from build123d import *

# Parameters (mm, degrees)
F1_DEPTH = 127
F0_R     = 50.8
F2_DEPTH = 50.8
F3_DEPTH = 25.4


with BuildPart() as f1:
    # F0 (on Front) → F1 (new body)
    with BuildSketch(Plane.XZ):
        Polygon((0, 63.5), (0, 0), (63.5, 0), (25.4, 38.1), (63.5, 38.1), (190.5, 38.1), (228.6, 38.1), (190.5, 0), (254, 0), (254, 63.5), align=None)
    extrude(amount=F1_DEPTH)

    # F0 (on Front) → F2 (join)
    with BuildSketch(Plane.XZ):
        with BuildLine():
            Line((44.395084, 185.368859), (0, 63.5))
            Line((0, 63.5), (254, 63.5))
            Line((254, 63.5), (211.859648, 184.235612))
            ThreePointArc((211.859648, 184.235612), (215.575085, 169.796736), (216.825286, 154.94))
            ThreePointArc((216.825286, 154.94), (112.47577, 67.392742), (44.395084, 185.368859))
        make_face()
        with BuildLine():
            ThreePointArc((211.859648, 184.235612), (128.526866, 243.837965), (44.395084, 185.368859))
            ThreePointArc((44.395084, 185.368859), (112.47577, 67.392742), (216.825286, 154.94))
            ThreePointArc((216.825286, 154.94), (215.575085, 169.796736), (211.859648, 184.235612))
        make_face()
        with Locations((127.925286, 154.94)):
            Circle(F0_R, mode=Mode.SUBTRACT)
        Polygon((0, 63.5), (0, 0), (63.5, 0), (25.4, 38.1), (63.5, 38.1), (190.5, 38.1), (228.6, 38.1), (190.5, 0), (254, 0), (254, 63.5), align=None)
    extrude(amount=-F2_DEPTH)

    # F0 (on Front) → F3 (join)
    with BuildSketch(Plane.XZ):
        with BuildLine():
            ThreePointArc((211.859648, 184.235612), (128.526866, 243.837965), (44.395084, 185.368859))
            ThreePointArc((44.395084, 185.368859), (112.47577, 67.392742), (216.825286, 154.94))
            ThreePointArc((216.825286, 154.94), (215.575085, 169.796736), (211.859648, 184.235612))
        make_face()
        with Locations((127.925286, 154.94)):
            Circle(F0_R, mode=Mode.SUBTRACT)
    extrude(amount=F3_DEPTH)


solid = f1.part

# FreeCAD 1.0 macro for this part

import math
import FreeCAD as App
import Part
import Sketcher
from FreeCAD import Vector
Q = App.Units.Quantity

doc = App.newDocument("Part")
body = doc.addObject("PartDesign::Body", "Body")

sketch1 = doc.addObject("Sketcher::SketchObject", "Sketch")
body.addObject(sketch1)
sketch1.AttachmentSupport = (doc.XZ_Plane, [""])
sketch1.MapMode = "FlatFace"
sketch1.addGeometry([
    Part.LineSegment(Vector(0, 64, 0), Vector(0, 0, 0)),
    Part.LineSegment(Vector(0, 0, 0), Vector(64, 0, 0)),
    Part.LineSegment(Vector(64, 0, 0), Vector(25, 38, 0)),
    Part.LineSegment(Vector(25, 38, 0), Vector(229, 38, 0)),
    Part.LineSegment(Vector(229, 38, 0), Vector(190, 0, 0)),
    Part.LineSegment(Vector(190, 0, 0), Vector(254, 0, 0)),
    Part.LineSegment(Vector(254, 0, 0), Vector(254, 64, 0)),
    Part.LineSegment(Vector(254, 64, 0), Vector(0, 64, 0)),
], False)
sketch1.addConstraint([
    Sketcher.Constraint("Coincident", 0, 2, 1, 1),
    Sketcher.Constraint("Coincident", 1, 2, 2, 1),
    Sketcher.Constraint("Coincident", 2, 2, 3, 1),
    Sketcher.Constraint("Coincident", 3, 2, 4, 1),
    Sketcher.Constraint("Coincident", 4, 2, 5, 1),
    Sketcher.Constraint("Coincident", 5, 2, 6, 1),
    Sketcher.Constraint("Coincident", 6, 2, 7, 1),
    Sketcher.Constraint("Coincident", 7, 2, 0, 1),
    Sketcher.Constraint("Vertical", 0),
    Sketcher.Constraint("Horizontal", 1),
    Sketcher.Constraint("Horizontal", 3),
    Sketcher.Constraint("Horizontal", 5),
    Sketcher.Constraint("Vertical", 6),
    Sketcher.Constraint("Horizontal", 7),
    Sketcher.Constraint("Coincident", 0, 2, -1, 1),
    Sketcher.Constraint("PointOnObject", 4, 2, -1),
    Sketcher.Constraint("Perpendicular", 2, 4),
    Sketcher.Constraint("Equal", 1, 5),
    Sketcher.Constraint("Equal", 5, 0),
    Sketcher.Constraint("Equal", 2, 4),
    Sketcher.Constraint("DistanceX", 3, 1, 3, 2, Q("8 in")),
    Sketcher.Constraint("DistanceX", 7, 2, 7, 1, Q("10 in")),
    Sketcher.Constraint("DistanceX", 1, 1, 1, 2, Q("2.5 in")),
])
pad1 = doc.addObject("PartDesign::Pad", "Pad")
body.addObject(pad1)
pad1.Profile = sketch1
pad1.Length = Q("5 in")

sketch2 = doc.addObject("Sketcher::SketchObject", "Sketch001")
body.addObject(sketch2)
sketch2.AttachmentSupport = (doc.XZ_Plane, [""])
sketch2.MapMode = "FlatFace"
sketch2.addGeometry([
    Part.LineSegment(Vector(44, 185, 0), Vector(0, 64, 0)),
    Part.LineSegment(Vector(0, 64, 0), Vector(0, 0, 0)),
    Part.LineSegment(Vector(0, 0, 0), Vector(64, 0, 0)),
    Part.LineSegment(Vector(64, 0, 0), Vector(25, 38, 0)),
    Part.LineSegment(Vector(25, 38, 0), Vector(229, 38, 0)),
    Part.LineSegment(Vector(229, 38, 0), Vector(190, 0, 0)),
    Part.LineSegment(Vector(190, 0, 0), Vector(254, 0, 0)),
    Part.LineSegment(Vector(254, 0, 0), Vector(254, 64, 0)),
    Part.LineSegment(Vector(254, 64, 0), Vector(212, 184, 0)),
    Part.ArcOfCircle(Part.Circle(Vector(128, 155, 0), Vector(0, 0, 1), 89), math.radians(19), math.radians(160)),
    Part.Circle(Vector(128, 155, 0), Vector(0, 0, 1), 51),
], False)
sketch2.addConstraint([
    Sketcher.Constraint("Coincident", 0, 2, 1, 1),
    Sketcher.Constraint("Coincident", 1, 2, 2, 1),
    Sketcher.Constraint("Coincident", 2, 2, 3, 1),
    Sketcher.Constraint("Coincident", 3, 2, 4, 1),
    Sketcher.Constraint("Coincident", 4, 2, 5, 1),
    Sketcher.Constraint("Coincident", 5, 2, 6, 1),
    Sketcher.Constraint("Coincident", 6, 2, 7, 1),
    Sketcher.Constraint("Coincident", 7, 2, 8, 1),
    Sketcher.Constraint("Tangent", 8, 2, 9, 1),
    Sketcher.Constraint("Tangent", 9, 2, 0, 1),
    Sketcher.Constraint("Vertical", 1),
    Sketcher.Constraint("Horizontal", 2),
    Sketcher.Constraint("Horizontal", 4),
    Sketcher.Constraint("Horizontal", 6),
    Sketcher.Constraint("Vertical", 7),
    Sketcher.Constraint("Coincident", 1, 2, -1, 1),
    Sketcher.Constraint("Coincident", 10, 3, 9, 3),
    Sketcher.Constraint("PointOnObject", 5, 2, -1),
    Sketcher.Constraint("Perpendicular", 3, 5),
    Sketcher.Constraint("Horizontal", 0, 2, 7, 2),
    Sketcher.Constraint("Equal", 2, 6),
    Sketcher.Constraint("Equal", 6, 1),
    Sketcher.Constraint("Equal", 3, 5),
    Sketcher.Constraint("Diameter", 10, Q("4 in")),
    Sketcher.Constraint("Radius", 9, Q("3.5 in")),
    Sketcher.Constraint("DistanceX", 4, 1, 4, 2, Q("8 in")),
    Sketcher.Constraint("DistanceX", 2, 1, 2, 2, Q("2.5 in")),
    Sketcher.Constraint("DistanceX", -1, 1, 3, 2, Q("1 in")),
    Sketcher.Constraint("DistanceY", -1, 1, 9, 3, Q("6.1 in")),
    Sketcher.Constraint("DistanceX", 9, 2, 9, 3, 83.530202),
])
pad2 = doc.addObject("PartDesign::Pad", "Pad001")
body.addObject(pad2)
pad2.Profile = sketch2
pad2.Length = Q("2 in")
pad2.Reversed = True

sketch3 = doc.addObject("Sketcher::SketchObject", "Sketch002")
body.addObject(sketch3)
sketch3.AttachmentSupport = (doc.XZ_Plane, [""])
sketch3.MapMode = "FlatFace"
sketch3.addGeometry([
    Part.ArcOfCircle(Part.Circle(Vector(127.925286, 154.94, 0), Vector(0, 0, 1), 88.9), math.radians(19.24052), math.radians(159.984041)),
    Part.ArcOfCircle(Part.Circle(Vector(127.925286, 154.940001, 0), Vector(0, 0, 1), 88.9), math.radians(159.984041), math.radians(360)),
    Part.ArcOfCircle(Part.Circle(Vector(127.925233, 154.939991, 0), Vector(0, 0, 1), 88.900053), math.radians(0.000006), math.radians(19.240515)),
    Part.Circle(Vector(127.925286, 154.94, 0), Vector(0, 0, 1), 50.8),
], False)
sketch3.addConstraint([
    Sketcher.Constraint("Coincident", 0, 2, 1, 1),
    Sketcher.Constraint("Coincident", 1, 2, 2, 1),
    Sketcher.Constraint("Coincident", 2, 2, 0, 1),
    Sketcher.Constraint("Coincident", 1, 3, 0, 3),
    Sketcher.Constraint("Coincident", 3, 3, 0, 3),
    Sketcher.Constraint("Diameter", 3, Q("4 in")),
    Sketcher.Constraint("Radius", 0, Q("3.5 in")),
    Sketcher.Constraint("DistanceY", -1, 1, 0, 3, Q("6.1 in")),
    Sketcher.Constraint("DistanceY", -1, 1, 1, 2, Q("6.1 in")),
    Sketcher.Constraint("Radius", 2, 88.900053),
    Sketcher.Constraint("DistanceX", 0, 2, 1, 3, 83.530202),
    Sketcher.Constraint("DistanceY", -1, 1, 2, 2, 184.235612),
    Sketcher.Constraint("DistanceX", -1, 1, 0, 3, 127.925286),
])
pad3 = doc.addObject("PartDesign::Pad", "Pad002")
body.addObject(pad3)
pad3.Profile = sketch3
pad3.Length = Q("1 in")

doc.recompute()
